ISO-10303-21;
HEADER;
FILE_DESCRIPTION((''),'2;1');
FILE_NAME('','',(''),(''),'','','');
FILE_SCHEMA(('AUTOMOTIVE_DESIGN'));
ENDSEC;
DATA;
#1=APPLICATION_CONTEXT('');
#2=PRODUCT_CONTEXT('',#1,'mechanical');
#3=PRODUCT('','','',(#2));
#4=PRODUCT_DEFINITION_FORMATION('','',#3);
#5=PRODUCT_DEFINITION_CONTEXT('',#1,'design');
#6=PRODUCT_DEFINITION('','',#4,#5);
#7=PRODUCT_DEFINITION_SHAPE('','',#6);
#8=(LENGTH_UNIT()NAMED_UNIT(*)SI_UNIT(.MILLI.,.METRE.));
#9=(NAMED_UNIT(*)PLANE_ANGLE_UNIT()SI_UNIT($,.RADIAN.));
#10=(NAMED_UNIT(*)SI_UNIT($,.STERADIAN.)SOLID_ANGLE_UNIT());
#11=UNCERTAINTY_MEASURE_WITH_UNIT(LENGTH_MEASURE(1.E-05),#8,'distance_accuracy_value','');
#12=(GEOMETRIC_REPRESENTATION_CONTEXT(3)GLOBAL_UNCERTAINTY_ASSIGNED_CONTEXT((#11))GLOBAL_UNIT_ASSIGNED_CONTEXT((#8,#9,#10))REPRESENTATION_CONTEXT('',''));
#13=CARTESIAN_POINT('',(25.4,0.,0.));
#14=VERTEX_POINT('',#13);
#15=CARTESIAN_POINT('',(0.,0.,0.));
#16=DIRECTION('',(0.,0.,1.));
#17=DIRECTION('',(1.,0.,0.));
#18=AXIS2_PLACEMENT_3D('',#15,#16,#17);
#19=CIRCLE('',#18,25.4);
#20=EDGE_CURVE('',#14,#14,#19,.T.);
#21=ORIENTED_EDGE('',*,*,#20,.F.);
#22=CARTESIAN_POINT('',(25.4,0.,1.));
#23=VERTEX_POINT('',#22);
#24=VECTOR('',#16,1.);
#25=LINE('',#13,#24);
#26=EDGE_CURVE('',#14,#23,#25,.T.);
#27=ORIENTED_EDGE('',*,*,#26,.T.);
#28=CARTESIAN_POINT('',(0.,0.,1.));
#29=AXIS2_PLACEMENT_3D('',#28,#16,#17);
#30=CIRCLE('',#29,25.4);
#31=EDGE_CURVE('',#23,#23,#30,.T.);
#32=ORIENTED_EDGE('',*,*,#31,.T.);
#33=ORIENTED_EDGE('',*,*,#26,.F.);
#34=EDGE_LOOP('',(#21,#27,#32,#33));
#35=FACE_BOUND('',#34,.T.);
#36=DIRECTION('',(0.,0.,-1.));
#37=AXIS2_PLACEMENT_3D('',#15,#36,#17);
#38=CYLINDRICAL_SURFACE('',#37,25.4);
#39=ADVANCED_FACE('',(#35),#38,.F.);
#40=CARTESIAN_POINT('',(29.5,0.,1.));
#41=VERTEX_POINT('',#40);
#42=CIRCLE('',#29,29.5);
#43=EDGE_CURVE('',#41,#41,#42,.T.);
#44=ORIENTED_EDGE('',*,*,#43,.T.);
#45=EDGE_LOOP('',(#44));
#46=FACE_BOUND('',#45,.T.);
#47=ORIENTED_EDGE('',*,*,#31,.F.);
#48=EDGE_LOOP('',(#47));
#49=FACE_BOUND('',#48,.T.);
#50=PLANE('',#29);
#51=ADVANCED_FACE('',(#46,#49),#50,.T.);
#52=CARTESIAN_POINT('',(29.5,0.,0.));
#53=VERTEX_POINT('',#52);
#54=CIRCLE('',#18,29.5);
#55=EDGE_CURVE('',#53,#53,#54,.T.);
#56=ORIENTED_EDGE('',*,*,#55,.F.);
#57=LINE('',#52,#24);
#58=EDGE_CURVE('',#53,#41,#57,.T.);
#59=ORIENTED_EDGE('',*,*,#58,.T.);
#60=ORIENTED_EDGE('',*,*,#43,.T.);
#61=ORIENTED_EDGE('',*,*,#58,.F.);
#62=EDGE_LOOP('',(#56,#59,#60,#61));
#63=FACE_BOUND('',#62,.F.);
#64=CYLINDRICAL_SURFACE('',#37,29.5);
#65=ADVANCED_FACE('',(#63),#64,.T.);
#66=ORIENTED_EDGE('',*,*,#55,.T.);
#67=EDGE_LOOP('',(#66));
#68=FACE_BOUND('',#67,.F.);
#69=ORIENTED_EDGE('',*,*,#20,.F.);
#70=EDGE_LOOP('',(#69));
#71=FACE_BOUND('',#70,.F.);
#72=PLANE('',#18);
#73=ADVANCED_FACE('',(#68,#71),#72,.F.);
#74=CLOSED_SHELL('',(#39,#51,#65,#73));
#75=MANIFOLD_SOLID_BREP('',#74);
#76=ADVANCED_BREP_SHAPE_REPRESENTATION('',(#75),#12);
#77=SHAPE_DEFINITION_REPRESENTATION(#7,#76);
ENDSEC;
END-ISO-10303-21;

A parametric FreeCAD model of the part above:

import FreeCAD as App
import Part
import Sketcher

doc = App.newDocument("Part")
params = doc.addObject("Spreadsheet::Sheet", "Params")
for row, (alias, value) in enumerate([
    ("sketch1_diameter", "59 mm"),
    ("sketch1_diameter2", "50.8 mm"),
    ("pad1_length", "1 mm"),
], start=1):
    params.set(f"A{row}", alias)
    params.set(f"B{row}", "=" + value)
    params.setAlias(f"B{row}", alias)

body = doc.addObject("PartDesign::Body", "Body")

sketch1 = body.newObject("Sketcher::SketchObject", "Sketch")
sketch1.AttachmentSupport = (doc.getObject("XY_Plane"), [""])
sketch1.MapMode = "FlatFace"
sketch1.addGeometry([
    Part.Circle(App.Vector(0, 0, 0), App.Vector(0, 0, 1), 29.5),
    Part.Circle(App.Vector(0, 0, 0), App.Vector(0, 0, 1), 25.4),
], False)
sketch1.addConstraint([
    Sketcher.Constraint("Coincident", 0, 3, -1, 1),
    Sketcher.Constraint("Coincident", 1, 3, -1, 1),
    Sketcher.Constraint("Diameter", 0, 59.0),
    Sketcher.Constraint("Diameter", 1, 50.8),
])
sketch1.setExpression("Constraints[2]", "Params.sketch1_diameter")
sketch1.setExpression("Constraints[3]", "Params.sketch1_diameter2")
pad1 = body.newObject("PartDesign::Pad", "Pad")
pad1.Profile = sketch1
pad1.setExpression("Length", "Params.pad1_length")

doc.recompute()
